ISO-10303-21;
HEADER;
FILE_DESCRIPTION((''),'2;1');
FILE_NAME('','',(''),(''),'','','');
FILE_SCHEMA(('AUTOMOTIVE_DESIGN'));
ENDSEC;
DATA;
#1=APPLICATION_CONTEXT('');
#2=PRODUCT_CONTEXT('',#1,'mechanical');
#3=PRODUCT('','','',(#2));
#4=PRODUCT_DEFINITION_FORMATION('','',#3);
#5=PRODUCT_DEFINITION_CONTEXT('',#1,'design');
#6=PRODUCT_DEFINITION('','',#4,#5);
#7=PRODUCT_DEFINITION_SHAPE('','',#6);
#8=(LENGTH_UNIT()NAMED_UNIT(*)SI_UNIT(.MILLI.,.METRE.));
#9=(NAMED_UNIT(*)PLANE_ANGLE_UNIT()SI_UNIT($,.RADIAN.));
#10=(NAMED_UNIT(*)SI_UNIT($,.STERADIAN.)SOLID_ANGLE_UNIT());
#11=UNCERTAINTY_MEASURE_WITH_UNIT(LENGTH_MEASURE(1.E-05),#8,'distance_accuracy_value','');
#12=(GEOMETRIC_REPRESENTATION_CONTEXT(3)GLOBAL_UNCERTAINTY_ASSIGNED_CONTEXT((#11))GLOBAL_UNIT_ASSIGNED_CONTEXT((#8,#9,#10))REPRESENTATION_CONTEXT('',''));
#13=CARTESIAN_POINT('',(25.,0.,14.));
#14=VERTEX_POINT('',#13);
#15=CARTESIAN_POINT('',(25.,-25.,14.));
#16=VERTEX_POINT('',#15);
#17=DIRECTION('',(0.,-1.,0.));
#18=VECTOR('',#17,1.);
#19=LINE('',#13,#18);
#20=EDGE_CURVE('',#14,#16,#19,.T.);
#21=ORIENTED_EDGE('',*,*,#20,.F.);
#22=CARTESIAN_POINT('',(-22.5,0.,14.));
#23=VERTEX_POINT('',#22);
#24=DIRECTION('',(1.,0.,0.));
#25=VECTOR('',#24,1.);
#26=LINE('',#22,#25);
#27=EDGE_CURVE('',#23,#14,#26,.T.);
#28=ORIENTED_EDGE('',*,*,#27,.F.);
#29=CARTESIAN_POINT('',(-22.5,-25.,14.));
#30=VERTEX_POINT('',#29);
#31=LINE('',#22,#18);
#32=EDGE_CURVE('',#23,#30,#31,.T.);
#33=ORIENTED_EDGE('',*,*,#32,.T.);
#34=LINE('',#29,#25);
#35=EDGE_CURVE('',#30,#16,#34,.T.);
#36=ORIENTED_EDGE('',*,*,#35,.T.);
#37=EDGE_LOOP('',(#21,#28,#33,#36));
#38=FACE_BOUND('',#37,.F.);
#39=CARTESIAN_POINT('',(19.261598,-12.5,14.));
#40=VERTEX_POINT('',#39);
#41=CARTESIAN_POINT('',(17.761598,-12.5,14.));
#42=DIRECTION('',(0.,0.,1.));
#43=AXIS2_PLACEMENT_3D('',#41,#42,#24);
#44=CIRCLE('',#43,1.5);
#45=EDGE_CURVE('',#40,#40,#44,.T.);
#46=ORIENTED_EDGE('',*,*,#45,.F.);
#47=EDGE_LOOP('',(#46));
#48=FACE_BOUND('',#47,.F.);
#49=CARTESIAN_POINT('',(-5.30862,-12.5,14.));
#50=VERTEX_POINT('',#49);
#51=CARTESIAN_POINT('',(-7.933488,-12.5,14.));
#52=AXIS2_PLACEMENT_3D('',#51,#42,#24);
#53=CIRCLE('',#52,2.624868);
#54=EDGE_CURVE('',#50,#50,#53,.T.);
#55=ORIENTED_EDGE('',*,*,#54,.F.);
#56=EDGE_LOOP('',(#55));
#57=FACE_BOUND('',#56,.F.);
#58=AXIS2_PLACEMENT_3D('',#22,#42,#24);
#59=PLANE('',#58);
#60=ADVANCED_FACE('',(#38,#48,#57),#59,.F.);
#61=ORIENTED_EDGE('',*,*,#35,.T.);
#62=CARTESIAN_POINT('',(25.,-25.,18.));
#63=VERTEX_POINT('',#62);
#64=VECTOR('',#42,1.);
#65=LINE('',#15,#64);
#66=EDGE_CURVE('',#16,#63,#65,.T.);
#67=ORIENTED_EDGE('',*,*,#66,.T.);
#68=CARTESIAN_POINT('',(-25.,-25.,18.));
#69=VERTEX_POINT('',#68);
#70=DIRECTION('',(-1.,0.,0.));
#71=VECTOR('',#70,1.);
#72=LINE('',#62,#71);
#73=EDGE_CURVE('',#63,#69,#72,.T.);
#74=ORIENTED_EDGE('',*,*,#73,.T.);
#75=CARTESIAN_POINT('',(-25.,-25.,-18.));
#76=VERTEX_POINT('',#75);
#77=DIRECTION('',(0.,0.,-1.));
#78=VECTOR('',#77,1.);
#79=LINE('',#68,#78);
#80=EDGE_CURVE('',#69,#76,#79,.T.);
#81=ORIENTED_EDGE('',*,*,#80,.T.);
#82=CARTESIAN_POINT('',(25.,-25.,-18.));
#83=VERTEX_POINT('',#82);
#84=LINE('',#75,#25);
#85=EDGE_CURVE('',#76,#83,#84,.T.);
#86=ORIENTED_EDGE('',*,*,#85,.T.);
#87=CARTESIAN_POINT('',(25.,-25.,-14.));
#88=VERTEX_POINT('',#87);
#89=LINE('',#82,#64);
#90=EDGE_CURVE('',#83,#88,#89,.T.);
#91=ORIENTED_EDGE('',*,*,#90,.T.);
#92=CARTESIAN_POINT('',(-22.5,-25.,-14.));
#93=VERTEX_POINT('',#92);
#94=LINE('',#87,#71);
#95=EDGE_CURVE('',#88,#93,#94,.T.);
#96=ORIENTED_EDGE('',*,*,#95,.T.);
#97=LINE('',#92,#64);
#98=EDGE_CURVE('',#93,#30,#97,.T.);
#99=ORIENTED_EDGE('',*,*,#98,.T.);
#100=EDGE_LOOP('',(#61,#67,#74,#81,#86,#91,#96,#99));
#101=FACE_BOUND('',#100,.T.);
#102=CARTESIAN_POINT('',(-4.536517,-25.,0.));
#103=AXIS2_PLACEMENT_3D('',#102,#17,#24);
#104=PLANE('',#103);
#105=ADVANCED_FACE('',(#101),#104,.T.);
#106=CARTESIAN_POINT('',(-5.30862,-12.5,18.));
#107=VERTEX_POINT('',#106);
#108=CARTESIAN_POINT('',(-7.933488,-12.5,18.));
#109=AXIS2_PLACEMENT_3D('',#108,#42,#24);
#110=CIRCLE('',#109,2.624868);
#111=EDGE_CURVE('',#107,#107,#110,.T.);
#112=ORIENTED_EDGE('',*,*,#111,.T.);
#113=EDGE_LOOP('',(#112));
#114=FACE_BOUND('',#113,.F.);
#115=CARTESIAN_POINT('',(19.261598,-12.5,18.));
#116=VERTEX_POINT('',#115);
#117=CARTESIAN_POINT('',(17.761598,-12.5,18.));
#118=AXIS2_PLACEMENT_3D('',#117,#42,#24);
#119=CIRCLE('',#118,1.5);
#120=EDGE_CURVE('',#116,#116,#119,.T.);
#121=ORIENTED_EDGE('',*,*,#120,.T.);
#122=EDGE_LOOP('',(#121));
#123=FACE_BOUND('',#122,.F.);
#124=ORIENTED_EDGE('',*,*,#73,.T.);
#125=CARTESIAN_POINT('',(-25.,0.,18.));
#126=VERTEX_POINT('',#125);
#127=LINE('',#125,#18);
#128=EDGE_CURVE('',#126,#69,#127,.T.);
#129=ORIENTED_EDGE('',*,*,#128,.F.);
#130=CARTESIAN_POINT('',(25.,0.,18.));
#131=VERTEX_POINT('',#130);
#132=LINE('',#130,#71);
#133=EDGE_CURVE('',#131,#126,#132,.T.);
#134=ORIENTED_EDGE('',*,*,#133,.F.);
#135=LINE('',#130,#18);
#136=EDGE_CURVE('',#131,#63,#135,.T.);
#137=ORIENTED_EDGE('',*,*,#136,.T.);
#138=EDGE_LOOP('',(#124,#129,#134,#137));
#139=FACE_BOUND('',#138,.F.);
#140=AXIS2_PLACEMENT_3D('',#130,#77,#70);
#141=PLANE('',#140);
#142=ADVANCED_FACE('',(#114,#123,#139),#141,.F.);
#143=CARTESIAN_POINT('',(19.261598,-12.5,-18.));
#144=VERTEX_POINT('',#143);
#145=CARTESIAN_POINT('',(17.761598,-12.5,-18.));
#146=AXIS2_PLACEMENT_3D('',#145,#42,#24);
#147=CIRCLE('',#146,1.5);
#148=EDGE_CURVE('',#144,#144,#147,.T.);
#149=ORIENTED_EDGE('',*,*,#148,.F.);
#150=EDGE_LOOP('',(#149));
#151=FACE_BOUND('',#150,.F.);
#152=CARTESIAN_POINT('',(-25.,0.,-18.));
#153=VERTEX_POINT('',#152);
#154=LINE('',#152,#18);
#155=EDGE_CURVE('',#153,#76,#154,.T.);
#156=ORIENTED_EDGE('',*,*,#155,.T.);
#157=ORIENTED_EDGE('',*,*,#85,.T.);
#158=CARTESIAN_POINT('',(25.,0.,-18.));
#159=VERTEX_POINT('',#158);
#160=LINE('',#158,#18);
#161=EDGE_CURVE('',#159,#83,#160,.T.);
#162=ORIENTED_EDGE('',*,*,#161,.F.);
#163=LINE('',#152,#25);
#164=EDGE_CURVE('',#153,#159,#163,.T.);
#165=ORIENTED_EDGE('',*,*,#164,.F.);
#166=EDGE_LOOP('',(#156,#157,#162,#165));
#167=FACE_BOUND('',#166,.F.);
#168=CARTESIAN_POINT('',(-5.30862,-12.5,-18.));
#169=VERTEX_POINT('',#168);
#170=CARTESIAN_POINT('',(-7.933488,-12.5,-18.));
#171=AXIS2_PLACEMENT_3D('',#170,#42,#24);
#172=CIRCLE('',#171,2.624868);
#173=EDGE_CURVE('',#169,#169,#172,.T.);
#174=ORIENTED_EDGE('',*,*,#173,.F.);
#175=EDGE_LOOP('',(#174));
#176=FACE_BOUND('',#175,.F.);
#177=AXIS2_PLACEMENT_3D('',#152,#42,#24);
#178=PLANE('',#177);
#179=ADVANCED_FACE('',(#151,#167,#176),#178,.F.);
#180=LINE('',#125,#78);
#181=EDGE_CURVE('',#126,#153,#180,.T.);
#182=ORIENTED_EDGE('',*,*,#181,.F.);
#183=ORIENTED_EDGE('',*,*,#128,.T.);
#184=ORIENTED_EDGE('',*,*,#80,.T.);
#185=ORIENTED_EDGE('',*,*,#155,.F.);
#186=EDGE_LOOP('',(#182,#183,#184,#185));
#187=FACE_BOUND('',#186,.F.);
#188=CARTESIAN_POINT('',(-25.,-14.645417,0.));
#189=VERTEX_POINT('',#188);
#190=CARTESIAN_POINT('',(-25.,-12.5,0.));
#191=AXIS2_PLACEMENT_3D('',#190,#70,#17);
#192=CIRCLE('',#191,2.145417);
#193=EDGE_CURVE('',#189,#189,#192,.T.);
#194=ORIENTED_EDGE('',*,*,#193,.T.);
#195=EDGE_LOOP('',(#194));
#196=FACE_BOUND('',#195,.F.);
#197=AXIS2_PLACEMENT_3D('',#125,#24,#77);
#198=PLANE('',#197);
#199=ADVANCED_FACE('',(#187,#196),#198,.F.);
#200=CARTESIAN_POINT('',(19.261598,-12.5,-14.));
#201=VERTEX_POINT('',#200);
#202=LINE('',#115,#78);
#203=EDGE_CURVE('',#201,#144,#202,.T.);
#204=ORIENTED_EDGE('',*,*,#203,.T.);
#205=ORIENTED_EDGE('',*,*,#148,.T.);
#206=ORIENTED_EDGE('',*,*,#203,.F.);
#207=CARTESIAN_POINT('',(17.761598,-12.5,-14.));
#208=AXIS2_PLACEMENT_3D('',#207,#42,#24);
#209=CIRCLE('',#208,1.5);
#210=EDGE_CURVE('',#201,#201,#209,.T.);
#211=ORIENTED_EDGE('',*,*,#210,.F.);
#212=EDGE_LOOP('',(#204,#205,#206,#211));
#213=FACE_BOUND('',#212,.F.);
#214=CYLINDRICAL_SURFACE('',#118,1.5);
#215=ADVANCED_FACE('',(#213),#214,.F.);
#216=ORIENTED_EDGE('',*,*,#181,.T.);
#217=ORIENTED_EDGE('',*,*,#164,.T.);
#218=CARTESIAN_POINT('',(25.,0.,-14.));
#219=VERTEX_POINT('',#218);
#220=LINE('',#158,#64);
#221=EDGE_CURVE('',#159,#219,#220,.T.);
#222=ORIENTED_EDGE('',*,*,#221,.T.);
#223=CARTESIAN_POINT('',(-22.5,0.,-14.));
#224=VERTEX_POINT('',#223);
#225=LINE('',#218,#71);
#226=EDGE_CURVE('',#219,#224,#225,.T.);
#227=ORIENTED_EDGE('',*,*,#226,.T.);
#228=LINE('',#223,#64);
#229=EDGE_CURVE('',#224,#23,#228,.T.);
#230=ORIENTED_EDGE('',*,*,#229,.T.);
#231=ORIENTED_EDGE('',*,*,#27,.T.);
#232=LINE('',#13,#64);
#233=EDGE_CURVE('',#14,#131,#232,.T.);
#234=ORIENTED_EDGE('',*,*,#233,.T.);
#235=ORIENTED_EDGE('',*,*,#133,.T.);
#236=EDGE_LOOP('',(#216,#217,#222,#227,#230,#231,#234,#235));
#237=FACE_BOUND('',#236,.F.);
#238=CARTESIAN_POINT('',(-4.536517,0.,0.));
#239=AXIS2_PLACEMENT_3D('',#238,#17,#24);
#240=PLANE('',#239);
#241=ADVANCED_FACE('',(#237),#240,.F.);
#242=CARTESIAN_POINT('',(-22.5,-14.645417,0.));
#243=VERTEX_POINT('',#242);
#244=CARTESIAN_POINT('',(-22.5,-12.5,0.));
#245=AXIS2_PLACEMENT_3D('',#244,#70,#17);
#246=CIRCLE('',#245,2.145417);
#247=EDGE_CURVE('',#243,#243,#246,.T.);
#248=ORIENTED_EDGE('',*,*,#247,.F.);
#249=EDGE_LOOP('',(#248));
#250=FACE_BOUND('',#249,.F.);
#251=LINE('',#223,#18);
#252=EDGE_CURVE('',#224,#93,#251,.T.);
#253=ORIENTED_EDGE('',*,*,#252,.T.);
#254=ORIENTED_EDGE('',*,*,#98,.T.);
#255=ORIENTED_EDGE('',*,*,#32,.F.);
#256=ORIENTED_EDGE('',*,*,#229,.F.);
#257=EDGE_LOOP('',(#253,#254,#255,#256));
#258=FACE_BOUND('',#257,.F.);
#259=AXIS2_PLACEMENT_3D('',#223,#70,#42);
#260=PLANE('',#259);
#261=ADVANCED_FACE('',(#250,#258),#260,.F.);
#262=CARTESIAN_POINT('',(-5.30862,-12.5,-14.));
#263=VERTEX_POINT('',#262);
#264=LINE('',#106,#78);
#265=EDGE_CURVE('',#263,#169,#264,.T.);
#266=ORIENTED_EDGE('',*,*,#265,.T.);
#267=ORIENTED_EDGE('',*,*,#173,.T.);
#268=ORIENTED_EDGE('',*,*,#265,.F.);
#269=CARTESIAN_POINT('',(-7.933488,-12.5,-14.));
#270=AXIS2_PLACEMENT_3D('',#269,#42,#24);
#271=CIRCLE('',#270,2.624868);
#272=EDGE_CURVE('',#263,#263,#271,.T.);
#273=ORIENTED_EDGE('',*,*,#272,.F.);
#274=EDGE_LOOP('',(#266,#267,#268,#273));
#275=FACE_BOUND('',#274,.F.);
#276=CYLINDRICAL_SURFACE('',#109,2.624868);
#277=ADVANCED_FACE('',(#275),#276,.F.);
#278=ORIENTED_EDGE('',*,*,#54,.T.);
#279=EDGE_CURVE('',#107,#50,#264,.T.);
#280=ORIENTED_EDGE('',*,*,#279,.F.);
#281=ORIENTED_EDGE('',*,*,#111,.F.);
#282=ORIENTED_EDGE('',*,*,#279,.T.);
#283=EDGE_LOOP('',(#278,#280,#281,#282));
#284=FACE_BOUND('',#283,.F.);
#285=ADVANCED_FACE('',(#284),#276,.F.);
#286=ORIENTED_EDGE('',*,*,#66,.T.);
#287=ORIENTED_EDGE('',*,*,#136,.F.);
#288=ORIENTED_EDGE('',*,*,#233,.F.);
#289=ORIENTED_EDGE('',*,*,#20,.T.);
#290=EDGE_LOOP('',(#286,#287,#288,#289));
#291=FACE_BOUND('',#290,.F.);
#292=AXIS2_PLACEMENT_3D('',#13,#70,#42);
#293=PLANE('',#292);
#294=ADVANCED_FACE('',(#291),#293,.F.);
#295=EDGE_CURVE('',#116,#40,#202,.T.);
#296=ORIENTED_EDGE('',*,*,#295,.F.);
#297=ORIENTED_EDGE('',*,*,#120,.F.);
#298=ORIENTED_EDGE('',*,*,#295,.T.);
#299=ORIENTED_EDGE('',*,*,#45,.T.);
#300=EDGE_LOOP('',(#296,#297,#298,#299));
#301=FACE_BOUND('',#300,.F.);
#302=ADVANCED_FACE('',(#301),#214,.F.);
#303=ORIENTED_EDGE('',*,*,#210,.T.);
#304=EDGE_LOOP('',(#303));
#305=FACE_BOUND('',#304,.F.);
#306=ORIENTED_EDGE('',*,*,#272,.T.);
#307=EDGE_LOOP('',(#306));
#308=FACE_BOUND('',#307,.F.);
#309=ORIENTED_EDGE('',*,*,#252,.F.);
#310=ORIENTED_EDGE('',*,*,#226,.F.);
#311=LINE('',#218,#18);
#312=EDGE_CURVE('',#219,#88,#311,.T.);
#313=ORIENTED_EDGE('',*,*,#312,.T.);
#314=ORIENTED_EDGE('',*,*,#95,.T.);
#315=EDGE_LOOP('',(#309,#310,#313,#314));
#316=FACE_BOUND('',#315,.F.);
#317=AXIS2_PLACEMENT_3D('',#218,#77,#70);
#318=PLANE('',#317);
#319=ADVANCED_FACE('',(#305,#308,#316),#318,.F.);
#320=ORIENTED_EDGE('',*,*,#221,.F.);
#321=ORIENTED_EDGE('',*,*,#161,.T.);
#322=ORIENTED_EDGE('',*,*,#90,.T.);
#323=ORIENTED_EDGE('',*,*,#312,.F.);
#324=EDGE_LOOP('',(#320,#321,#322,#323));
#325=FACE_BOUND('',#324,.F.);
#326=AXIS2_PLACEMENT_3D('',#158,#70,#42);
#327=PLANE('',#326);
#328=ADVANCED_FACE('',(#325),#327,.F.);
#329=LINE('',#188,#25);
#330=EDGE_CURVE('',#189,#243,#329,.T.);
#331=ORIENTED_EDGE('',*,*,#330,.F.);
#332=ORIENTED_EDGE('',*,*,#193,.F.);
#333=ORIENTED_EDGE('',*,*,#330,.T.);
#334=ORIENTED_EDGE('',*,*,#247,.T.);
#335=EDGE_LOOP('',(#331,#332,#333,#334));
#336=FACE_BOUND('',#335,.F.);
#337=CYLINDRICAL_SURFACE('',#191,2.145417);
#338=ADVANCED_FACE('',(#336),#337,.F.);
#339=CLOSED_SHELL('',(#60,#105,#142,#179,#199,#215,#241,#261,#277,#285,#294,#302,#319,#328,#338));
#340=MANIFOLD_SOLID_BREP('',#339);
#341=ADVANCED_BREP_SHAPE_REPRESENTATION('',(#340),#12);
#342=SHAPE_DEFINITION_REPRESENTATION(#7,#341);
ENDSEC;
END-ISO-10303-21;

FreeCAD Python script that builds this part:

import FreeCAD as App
import Part
import Sketcher

doc = App.newDocument("Part")
body = doc.addObject("PartDesign::Body", "Body")

sketch1 = body.newObject("Sketcher::SketchObject", "Sketch")
sketch1.AttachmentSupport = (doc.getObject("XZ_Plane"), [""])
sketch1.MapMode = "FlatFace"
sketch1.addGeometry([
    Part.LineSegment(App.Vector(25, 18, 0), App.Vector(-25, 18, 0)),
    Part.LineSegment(App.Vector(-25, 18, 0), App.Vector(-25, -18, 0)),
    Part.LineSegment(App.Vector(-25, -18, 0), App.Vector(25, -18, 0)),
    Part.LineSegment(App.Vector(25, -18, 0), App.Vector(25, -14, 0)),
    Part.LineSegment(App.Vector(25, -14, 0), App.Vector(-22.5, -14, 0)),
    Part.LineSegment(App.Vector(-22.5, -14, 0), App.Vector(-22.5, 14, 0)),
    Part.LineSegment(App.Vector(-22.5, 14, 0), App.Vector(25, 14, 0)),
    Part.LineSegment(App.Vector(25, 14, 0), App.Vector(25, 18, 0)),
], False)
sketch1.addConstraint([
    Sketcher.Constraint("Coincident", 0, 2, 1, 1),
    Sketcher.Constraint("Coincident", 1, 2, 2, 1),
    Sketcher.Constraint("Coincident", 2, 2, 3, 1),
    Sketcher.Constraint("Coincident", 3, 2, 4, 1),
    Sketcher.Constraint("Coincident", 4, 2, 5, 1),
    Sketcher.Constraint("Coincident", 5, 2, 6, 1),
    Sketcher.Constraint("Coincident", 6, 2, 7, 1),
    Sketcher.Constraint("Coincident", 7, 2, 0, 1),
    Sketcher.Constraint("Horizontal", 0),
    Sketcher.Constraint("Vertical", 1),
    Sketcher.Constraint("Horizontal", 2),
    Sketcher.Constraint("Vertical", 3),
    Sketcher.Constraint("Horizontal", 4),
    Sketcher.Constraint("Vertical", 5),
    Sketcher.Constraint("Horizontal", 6),
    Sketcher.Constraint("Vertical", 7),
    Sketcher.Constraint("Symmetric", 0, 2, 2, 2, -1, 1),
    Sketcher.Constraint("Symmetric", 3, 2, 6, 2, -1),
    Sketcher.Constraint("DistanceX", 0, 2, 0, 1, 50.0),
    Sketcher.Constraint("DistanceY", 1, 2, 1, 1, 36.0),
    Sketcher.Constraint("DistanceY", 3, 1, 3, 2, 4.0),
    Sketcher.Constraint("DistanceX", 4, 2, 4, 1, 47.5),
])
pad1 = body.newObject("PartDesign::Pad", "Pad")
pad1.Profile = sketch1
pad1.Length = 25

sketch2 = body.newObject("Sketcher::SketchObject", "Sketch001")
sketch2.AttachmentSupport = (doc.getObject("XY_Plane"), [""])
sketch2.MapMode = "FlatFace"
sketch2.AttachmentOffset = App.Placement(App.Vector(0, 0, 18), App.Rotation())
sketch2.addGeometry(Part.Circle(App.Vector(17.8, -12.5, 0), App.Vector(0, 0, 1), 1.5), False)
sketch2.addConstraint([
    Sketcher.Constraint("Diameter", 0, 3.0),
    Sketcher.Constraint("DistanceY", 0, 3, -1, 1, 12.5),
    Sketcher.Constraint("DistanceX", -1, 1, 0, 3, 17.761598),
])
pocket1 = body.newObject("PartDesign::Pocket", "Pocket")
pocket1.Profile = sketch2
pocket1.Type = "ThroughAll"

sketch3 = body.newObject("Sketcher::SketchObject", "Sketch002")
sketch3.AttachmentSupport = (doc.getObject("YZ_Plane"), [""])
sketch3.MapMode = "FlatFace"
sketch3.AttachmentOffset = App.Placement(App.Vector(0, 0, -25), App.Rotation())
sketch3.addGeometry(Part.Circle(App.Vector(-12.5, 0, 0), App.Vector(0, 0, 1), 2.1), False)
sketch3.addConstraint([
    Sketcher.Constraint("PointOnObject", 0, 3, -1),
    Sketcher.Constraint("DistanceX", 0, 3, -1, 1, 12.5),
    Sketcher.Constraint("Diameter", 0, 4.290834),
])
pocket2 = body.newObject("PartDesign::Pocket", "Pocket001")
pocket2.Profile = sketch3
pocket2.Type = "ThroughAll"
pocket2.Reversed = True

sketch4 = body.newObject("Sketcher::SketchObject", "Sketch003")
sketch4.AttachmentSupport = (doc.getObject("XY_Plane"), [""])
sketch4.MapMode = "FlatFace"
sketch4.AttachmentOffset = App.Placement(App.Vector(0, 0, 18), App.Rotation())
sketch4.addGeometry(Part.Circle(App.Vector(-7.9, -12.5, 0), App.Vector(0, 0, 1), 2.6), False)
sketch4.addConstraint([
    Sketcher.Constraint("DistanceY", 0, 3, -1, 1, 12.5),
    Sketcher.Constraint("Diameter", 0, 5.249736),
    Sketcher.Constraint("DistanceX", 0, 3, -1, 1, 7.933488),
])
pocket3 = body.newObject("PartDesign::Pocket", "Pocket002")
pocket3.Profile = sketch4
pocket3.Type = "ThroughAll"

doc.recompute()
